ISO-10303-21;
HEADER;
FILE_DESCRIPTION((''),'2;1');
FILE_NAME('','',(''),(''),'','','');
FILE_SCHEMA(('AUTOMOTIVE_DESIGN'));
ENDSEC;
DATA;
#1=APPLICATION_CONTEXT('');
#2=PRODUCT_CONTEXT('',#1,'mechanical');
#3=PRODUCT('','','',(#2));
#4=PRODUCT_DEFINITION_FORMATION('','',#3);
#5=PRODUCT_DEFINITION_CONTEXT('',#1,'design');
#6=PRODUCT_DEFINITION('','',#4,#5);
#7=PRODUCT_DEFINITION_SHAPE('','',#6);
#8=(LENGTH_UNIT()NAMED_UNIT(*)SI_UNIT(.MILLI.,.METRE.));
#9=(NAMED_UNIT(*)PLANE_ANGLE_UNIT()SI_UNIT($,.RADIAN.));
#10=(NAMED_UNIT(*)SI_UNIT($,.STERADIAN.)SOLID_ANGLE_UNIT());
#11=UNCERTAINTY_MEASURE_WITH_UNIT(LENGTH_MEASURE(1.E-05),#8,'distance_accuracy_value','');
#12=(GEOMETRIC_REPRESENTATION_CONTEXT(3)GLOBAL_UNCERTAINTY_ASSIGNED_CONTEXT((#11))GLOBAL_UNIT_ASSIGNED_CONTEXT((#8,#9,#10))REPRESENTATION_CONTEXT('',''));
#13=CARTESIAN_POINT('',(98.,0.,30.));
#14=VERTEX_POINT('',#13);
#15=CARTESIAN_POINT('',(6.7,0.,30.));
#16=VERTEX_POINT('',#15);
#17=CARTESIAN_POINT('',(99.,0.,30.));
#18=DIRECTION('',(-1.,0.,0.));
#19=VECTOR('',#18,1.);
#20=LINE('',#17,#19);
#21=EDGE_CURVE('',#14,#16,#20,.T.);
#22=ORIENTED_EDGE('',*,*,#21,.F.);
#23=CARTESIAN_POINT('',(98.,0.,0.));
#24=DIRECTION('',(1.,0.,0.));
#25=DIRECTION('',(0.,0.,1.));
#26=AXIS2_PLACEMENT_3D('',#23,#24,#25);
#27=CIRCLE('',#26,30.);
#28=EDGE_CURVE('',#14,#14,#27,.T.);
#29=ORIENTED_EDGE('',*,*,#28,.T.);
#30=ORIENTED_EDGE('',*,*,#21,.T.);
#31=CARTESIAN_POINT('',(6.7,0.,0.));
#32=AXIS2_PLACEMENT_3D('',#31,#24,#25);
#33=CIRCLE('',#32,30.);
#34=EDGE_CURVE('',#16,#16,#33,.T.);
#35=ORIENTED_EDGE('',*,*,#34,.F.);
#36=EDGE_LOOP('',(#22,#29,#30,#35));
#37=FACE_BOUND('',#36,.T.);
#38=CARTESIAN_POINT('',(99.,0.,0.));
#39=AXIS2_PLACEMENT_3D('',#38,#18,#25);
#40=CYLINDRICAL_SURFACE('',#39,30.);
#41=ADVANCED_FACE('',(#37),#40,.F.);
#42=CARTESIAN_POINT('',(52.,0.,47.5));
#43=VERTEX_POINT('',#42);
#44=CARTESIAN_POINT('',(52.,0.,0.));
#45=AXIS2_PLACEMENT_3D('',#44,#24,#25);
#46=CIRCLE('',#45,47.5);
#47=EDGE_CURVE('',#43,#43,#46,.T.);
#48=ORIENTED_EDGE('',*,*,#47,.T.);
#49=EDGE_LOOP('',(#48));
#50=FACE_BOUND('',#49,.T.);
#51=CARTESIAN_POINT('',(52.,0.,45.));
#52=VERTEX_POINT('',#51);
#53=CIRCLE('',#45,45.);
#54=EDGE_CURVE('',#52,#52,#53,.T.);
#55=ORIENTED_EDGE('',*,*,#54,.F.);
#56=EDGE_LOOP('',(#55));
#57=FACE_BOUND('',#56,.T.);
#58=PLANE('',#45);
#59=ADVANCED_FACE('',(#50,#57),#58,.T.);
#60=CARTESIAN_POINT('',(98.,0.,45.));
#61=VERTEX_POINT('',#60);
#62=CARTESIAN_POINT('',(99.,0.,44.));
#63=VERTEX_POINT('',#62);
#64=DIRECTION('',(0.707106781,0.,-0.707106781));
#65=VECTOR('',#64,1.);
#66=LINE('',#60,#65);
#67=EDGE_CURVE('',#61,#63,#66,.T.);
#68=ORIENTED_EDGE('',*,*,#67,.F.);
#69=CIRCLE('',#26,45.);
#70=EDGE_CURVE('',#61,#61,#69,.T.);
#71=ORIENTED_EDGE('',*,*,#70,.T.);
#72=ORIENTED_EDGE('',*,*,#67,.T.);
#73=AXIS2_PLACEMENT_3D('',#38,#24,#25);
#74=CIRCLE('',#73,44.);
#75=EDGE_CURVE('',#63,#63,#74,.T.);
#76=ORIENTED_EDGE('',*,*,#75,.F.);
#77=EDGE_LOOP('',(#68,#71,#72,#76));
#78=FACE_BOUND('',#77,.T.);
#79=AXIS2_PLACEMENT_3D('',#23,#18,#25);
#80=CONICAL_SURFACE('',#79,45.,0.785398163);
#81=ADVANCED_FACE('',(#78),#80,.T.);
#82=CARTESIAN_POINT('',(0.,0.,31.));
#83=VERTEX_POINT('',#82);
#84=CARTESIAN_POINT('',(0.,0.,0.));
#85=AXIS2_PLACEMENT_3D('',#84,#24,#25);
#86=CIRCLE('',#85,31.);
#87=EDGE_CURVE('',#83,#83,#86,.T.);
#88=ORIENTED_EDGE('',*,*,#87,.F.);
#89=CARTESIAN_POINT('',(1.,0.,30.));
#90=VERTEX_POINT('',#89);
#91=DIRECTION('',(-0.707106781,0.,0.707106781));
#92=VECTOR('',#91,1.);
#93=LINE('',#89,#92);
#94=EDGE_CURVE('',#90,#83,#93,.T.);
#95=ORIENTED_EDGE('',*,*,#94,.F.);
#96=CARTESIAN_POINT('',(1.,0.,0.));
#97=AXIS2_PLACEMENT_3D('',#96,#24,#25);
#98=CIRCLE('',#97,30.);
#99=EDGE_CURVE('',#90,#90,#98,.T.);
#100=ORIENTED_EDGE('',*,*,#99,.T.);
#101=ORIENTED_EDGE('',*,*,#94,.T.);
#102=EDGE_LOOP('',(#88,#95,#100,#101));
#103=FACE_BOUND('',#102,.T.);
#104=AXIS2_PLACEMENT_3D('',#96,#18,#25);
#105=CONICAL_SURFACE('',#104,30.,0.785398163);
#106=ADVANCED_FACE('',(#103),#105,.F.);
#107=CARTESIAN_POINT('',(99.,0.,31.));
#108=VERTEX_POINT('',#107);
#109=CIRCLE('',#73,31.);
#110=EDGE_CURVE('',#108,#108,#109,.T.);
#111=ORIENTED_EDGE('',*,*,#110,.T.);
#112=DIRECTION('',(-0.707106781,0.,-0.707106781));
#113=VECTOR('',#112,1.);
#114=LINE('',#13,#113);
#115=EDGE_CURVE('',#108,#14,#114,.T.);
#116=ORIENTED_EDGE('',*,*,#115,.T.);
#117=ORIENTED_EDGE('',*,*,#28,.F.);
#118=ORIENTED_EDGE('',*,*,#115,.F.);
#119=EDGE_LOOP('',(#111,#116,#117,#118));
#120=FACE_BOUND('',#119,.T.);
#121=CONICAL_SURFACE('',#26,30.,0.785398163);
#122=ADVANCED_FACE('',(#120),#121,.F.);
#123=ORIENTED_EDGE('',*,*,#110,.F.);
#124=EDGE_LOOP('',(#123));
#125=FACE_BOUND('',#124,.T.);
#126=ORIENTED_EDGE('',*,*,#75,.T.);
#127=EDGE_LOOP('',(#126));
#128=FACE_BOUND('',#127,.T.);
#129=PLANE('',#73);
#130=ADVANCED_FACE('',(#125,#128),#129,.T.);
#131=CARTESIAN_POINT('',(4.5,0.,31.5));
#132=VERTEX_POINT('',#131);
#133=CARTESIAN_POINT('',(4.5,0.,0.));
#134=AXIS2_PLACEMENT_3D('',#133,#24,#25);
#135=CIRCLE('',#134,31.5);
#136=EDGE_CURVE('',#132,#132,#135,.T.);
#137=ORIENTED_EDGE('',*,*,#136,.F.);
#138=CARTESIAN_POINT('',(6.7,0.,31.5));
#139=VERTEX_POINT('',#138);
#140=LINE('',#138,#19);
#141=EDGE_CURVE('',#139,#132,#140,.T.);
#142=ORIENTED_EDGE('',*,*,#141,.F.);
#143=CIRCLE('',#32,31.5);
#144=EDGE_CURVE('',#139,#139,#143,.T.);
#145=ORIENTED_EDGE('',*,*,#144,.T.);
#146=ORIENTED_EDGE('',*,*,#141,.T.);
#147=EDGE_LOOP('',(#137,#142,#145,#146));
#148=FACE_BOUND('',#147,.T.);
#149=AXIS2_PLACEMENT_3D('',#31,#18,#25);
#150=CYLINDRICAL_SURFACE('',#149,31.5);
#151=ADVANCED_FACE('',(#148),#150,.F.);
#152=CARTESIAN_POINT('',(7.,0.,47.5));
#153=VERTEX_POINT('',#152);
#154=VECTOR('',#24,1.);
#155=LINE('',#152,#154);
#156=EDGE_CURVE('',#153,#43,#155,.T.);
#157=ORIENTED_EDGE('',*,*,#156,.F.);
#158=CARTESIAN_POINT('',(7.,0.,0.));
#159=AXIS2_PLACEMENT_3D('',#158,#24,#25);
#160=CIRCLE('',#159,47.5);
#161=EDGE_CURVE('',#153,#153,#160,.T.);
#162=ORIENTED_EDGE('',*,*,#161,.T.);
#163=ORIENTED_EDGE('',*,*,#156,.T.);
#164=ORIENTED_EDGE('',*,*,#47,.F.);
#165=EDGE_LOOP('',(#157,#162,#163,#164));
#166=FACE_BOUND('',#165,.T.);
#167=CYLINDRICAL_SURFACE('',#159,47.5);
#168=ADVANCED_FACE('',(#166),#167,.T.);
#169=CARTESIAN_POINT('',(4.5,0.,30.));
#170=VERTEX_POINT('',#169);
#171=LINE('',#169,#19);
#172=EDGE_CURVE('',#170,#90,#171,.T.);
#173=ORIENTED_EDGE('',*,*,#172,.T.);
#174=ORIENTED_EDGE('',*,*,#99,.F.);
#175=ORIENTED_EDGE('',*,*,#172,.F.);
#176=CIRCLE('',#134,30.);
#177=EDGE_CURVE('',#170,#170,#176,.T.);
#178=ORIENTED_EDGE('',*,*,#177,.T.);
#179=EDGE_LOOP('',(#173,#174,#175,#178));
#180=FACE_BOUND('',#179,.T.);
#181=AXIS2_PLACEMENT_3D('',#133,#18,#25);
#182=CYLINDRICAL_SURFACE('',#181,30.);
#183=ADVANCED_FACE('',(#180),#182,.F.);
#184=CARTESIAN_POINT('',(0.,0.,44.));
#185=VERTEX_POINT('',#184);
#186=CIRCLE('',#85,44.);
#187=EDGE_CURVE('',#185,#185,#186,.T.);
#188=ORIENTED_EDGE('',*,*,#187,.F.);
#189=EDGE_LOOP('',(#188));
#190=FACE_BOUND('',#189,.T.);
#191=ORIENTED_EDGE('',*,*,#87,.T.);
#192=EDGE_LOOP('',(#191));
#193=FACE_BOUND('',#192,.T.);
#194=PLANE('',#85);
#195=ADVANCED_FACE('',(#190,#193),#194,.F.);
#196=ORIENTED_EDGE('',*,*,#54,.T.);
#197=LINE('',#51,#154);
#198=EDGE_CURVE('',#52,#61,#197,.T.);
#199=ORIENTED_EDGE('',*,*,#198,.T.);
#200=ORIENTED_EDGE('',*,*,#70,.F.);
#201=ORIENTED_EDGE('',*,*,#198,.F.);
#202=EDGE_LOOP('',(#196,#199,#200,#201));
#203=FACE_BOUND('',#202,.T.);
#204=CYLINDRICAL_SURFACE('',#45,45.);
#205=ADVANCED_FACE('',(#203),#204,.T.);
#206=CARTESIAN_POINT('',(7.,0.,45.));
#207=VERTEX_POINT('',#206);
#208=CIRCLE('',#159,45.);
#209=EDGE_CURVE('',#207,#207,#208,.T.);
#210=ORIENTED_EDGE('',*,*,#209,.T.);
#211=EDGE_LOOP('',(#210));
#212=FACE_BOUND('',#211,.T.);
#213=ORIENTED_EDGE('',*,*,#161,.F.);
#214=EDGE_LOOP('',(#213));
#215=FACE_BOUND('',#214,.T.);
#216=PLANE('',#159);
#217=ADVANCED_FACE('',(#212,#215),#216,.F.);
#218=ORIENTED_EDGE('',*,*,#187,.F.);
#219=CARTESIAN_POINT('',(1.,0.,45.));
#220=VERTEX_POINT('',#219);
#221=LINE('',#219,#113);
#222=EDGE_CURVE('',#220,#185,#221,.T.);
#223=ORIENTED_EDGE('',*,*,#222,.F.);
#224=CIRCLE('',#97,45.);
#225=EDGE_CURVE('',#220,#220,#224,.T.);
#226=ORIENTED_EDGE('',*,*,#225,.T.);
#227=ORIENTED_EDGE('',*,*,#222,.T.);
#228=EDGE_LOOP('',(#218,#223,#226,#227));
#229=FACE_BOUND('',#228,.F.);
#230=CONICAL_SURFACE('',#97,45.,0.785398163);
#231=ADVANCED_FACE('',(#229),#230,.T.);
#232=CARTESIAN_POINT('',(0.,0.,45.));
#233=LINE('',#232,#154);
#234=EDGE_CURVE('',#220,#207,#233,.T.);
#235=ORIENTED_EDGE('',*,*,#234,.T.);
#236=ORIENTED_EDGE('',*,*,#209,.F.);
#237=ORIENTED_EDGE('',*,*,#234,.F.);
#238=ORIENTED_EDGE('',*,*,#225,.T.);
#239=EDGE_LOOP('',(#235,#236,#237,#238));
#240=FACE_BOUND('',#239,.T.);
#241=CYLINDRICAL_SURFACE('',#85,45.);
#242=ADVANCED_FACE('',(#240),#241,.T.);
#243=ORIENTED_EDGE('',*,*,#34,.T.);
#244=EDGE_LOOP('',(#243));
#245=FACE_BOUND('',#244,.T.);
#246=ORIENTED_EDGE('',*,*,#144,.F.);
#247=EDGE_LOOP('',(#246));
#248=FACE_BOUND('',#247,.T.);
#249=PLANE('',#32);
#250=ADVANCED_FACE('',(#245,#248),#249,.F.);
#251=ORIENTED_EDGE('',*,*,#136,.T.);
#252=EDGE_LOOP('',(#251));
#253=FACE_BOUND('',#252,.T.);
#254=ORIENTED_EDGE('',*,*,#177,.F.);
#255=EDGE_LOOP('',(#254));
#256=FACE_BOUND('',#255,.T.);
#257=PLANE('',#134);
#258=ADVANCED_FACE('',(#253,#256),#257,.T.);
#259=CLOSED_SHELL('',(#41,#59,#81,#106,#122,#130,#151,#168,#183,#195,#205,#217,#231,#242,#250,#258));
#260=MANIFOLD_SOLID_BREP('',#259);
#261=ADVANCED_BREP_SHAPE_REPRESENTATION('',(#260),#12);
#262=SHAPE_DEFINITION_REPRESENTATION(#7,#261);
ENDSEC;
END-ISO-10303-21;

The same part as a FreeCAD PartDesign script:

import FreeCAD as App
import Part
import Sketcher
from FreeCAD import Vector


def edges_at(feature, points):
    """Names of the edges that pass closest to the given points."""
    edges = feature.Shape.Edges
    near = lambda p: min(range(len(edges)), key=lambda i: edges[i].distToShape(Part.Vertex(*p))[0])
    return sorted({f"Edge{near(p) + 1}" for p in points})


def add_polygon(sketch, points):
    """Adds a closed chain of lines whose ends are joined by coincident constraints."""
    first, n = sketch.GeometryCount, len(points)
    for a, b in zip(points, points[1:] + points[:1]):
        sketch.addGeometry(Part.LineSegment(App.Vector(*a, 0), App.Vector(*b, 0)), False)
    for i in range(n):
        sketch.addConstraint(Sketcher.Constraint("Coincident", first + i, 2, first + (i + 1) % n, 1))

doc = App.newDocument("Part")
body = doc.addObject("PartDesign::Body", "Body")

sketch1 = body.newObject("Sketcher::SketchObject", "Sketch")
sketch1.AttachmentSupport = (doc.getObject("XY_Plane"), [""])
sketch1.MapMode = "FlatFace"
add_polygon(sketch1, [(7, 45), (0, 45), (0, 30), (4.5, 30), (4.5, 31.5), (6.7, 31.5), (6.7, 30), (99, 30), (99, 45), (52, 45), (52, 47.5), (7, 47.5)])
sketch1.addConstraint([
    Sketcher.Constraint("Horizontal", 0),
    Sketcher.Constraint("Vertical", 1),
    Sketcher.Constraint("Horizontal", 2),
    Sketcher.Constraint("Vertical", 3),
    Sketcher.Constraint("Horizontal", 4),
    Sketcher.Constraint("Vertical", 5),
    Sketcher.Constraint("Horizontal", 6),
    Sketcher.Constraint("Vertical", 7),
    Sketcher.Constraint("Horizontal", 8),
    Sketcher.Constraint("Vertical", 9),
    Sketcher.Constraint("Horizontal", 10),
    Sketcher.Constraint("Vertical", 11),
    Sketcher.Constraint("PointOnObject", 0, 2, -2),
    Sketcher.Constraint("Horizontal", 2, 2, 5, 2),
    Sketcher.Constraint("Horizontal", 0, 2, 7, 2),
    Sketcher.Constraint("DistanceX", 0, 2, 0, 1, 7.0),
    Sketcher.Constraint("DistanceX", 8, 2, 8, 1, 47.0),
    Sketcher.Constraint("DistanceX", 10, 2, 10, 1, 45.0),
    Sketcher.Constraint("DistanceY", 1, 2, 1, 1, 15.0),
    Sketcher.Constraint("DistanceX", 2, 1, 2, 2, 4.5),
    Sketcher.Constraint("DistanceX", 4, 1, 4, 2, 2.2),
    Sketcher.Constraint("DistanceY", 3, 1, 3, 2, 1.5),
    Sketcher.Constraint("DistanceY", 9, 1, 9, 2, 2.5),
    Sketcher.Constraint("DistanceY", -1, 1, 0, 2, 45.0),
])
revolution = body.newObject("PartDesign::Revolution", "Revolution")
revolution.Profile = sketch1
revolution.ReferenceAxis = (sketch1, ["H_Axis"])
revolution.Angle = 360
doc.recompute()

chamfer = body.newObject("PartDesign::Chamfer", "Chamfer")
chamfer.Base = (revolution, edges_at(revolution, [
    (99, 0, -45),
    (99, 0, -30),
    (0, 0, -30),
    (0, 0, -45),
]))
chamfer.Size = 1

doc.recompute()
